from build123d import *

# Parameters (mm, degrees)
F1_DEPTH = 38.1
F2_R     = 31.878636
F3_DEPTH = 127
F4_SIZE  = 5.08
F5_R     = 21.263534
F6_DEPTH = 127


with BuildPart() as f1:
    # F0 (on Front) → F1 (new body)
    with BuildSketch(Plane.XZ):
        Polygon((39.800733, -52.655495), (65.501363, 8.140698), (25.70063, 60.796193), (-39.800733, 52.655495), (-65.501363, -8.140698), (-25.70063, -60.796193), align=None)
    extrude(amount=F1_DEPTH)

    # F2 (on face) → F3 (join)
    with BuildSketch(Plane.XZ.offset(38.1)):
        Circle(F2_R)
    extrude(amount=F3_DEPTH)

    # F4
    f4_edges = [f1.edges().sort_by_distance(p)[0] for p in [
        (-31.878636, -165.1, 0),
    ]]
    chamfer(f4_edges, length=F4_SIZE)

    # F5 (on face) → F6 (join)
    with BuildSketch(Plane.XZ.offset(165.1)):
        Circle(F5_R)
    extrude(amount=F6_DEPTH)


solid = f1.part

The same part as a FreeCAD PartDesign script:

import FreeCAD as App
import Part
import Sketcher

V = App.Vector
Q = App.Units.Quantity


def edges_at(feature, points):
    """Names of the edges that pass closest to the given points."""
    edges = feature.Shape.Edges
    near = lambda p: min(range(len(edges)), key=lambda i: edges[i].distToShape(Part.Vertex(*p))[0])
    return sorted({f"Edge{near(p) + 1}" for p in points})

doc = App.newDocument("Part")
body = doc.addObject("PartDesign::Body", "Body")

# Sketch on XZ plane
sketch1 = doc.addObject("Sketcher::SketchObject", "Sketch")
body.addObject(sketch1)
sketch1.AttachmentSupport = (doc.XZ_Plane, [""])
sketch1.MapMode = "FlatFace"
sketch1.addGeometry([
    Part.LineSegment(V(40, -53, 0), V(66, 8, 0)),  # 0
    Part.LineSegment(V(66, 8, 0), V(26, 61, 0)),  # 1
    Part.LineSegment(V(26, 61, 0), V(-40, 53, 0)),  # 2
    Part.LineSegment(V(-40, 53, 0), V(-66, -8, 0)),  # 3
    Part.LineSegment(V(-66, -8, 0), V(-26, -61, 0)),  # 4
    Part.LineSegment(V(-26, -61, 0), V(40, -53, 0)),  # 5
], False)
sketch1.addConstraint([
    Sketcher.Constraint("Coincident", 0, 2, 1, 1),
    Sketcher.Constraint("Coincident", 1, 2, 2, 1),
    Sketcher.Constraint("Coincident", 2, 2, 3, 1),
    Sketcher.Constraint("Coincident", 3, 2, 4, 1),
    Sketcher.Constraint("Coincident", 4, 2, 5, 1),
    Sketcher.Constraint("Coincident", 5, 2, 0, 1),
    Sketcher.Constraint("Symmetric", 0, 2, 3, 2, -1, 1),
    Sketcher.Constraint("Symmetric", 1, 2, 4, 2, -1, 1),
    Sketcher.Constraint("Symmetric", 2, 2, 5, 2, -1, 1),
    Sketcher.Constraint("Equal", 0, 1),
    Sketcher.Constraint("Equal", 1, 2),
    Sketcher.Constraint("DistanceY", 3, 2, 0, 2, Q("0.6409998 in")),
    Sketcher.Constraint("DistanceY", 2, 2, 1, 2, Q("0.3204999 in")),
    Sketcher.Constraint("Distance", 0, Q("66.005299 mm")),
    Sketcher.Constraint("DistanceX", -1, 1, 1, 2, Q("25.70063 mm")),
])
pad1 = doc.addObject("PartDesign::Pad", "Pad")
body.addObject(pad1)
pad1.Profile = sketch1
pad1.Length = Q("1.5 in")

# Sketch on XZ plane
sketch2 = doc.addObject("Sketcher::SketchObject", "Sketch001")
body.addObject(sketch2)
sketch2.AttachmentSupport = (doc.XZ_Plane, [""])
sketch2.MapMode = "FlatFace"
sketch2.AttachmentOffset = App.Placement(V(0, 0, 1.5 * 25.4), App.Rotation())
sketch2.addGeometry(Part.Circle(V(0, 0, 0), V(0, 0, 1), 32), False)
sketch2.addConstraint([
    Sketcher.Constraint("Coincident", 0, 3, -1, 1),
    Sketcher.Constraint("Diameter", 0, Q("63.757272 mm")),
])
pad2 = doc.addObject("PartDesign::Pad", "Pad001")
body.addObject(pad2)
pad2.Profile = sketch2
pad2.Length = Q("5 in")
doc.recompute()

chamfer = doc.addObject("PartDesign::Chamfer", "Chamfer")
body.addObject(chamfer)
chamfer.Base = (pad2, edges_at(pad2, [(-31.879, -165.1, 0)]))
chamfer.Size = Q("0.2 in")

# Sketch on XZ plane
sketch3 = doc.addObject("Sketcher::SketchObject", "Sketch002")
body.addObject(sketch3)
sketch3.AttachmentSupport = (doc.XZ_Plane, [""])
sketch3.MapMode = "FlatFace"
sketch3.AttachmentOffset = App.Placement(V(0, 0, 6.5 * 25.4), App.Rotation())
sketch3.addGeometry(Part.Circle(V(0, 0, 0), V(0, 0, 1), 21), False)
sketch3.addConstraint([
    Sketcher.Constraint("Coincident", 0, 3, -1, 1),
    Sketcher.Constraint("Diameter", 0, Q("42.527068 mm")),
])
pad3 = doc.addObject("PartDesign::Pad", "Pad002")
body.addObject(pad3)
pad3.Profile = sketch3
pad3.Length = Q("5 in")

doc.recompute()
